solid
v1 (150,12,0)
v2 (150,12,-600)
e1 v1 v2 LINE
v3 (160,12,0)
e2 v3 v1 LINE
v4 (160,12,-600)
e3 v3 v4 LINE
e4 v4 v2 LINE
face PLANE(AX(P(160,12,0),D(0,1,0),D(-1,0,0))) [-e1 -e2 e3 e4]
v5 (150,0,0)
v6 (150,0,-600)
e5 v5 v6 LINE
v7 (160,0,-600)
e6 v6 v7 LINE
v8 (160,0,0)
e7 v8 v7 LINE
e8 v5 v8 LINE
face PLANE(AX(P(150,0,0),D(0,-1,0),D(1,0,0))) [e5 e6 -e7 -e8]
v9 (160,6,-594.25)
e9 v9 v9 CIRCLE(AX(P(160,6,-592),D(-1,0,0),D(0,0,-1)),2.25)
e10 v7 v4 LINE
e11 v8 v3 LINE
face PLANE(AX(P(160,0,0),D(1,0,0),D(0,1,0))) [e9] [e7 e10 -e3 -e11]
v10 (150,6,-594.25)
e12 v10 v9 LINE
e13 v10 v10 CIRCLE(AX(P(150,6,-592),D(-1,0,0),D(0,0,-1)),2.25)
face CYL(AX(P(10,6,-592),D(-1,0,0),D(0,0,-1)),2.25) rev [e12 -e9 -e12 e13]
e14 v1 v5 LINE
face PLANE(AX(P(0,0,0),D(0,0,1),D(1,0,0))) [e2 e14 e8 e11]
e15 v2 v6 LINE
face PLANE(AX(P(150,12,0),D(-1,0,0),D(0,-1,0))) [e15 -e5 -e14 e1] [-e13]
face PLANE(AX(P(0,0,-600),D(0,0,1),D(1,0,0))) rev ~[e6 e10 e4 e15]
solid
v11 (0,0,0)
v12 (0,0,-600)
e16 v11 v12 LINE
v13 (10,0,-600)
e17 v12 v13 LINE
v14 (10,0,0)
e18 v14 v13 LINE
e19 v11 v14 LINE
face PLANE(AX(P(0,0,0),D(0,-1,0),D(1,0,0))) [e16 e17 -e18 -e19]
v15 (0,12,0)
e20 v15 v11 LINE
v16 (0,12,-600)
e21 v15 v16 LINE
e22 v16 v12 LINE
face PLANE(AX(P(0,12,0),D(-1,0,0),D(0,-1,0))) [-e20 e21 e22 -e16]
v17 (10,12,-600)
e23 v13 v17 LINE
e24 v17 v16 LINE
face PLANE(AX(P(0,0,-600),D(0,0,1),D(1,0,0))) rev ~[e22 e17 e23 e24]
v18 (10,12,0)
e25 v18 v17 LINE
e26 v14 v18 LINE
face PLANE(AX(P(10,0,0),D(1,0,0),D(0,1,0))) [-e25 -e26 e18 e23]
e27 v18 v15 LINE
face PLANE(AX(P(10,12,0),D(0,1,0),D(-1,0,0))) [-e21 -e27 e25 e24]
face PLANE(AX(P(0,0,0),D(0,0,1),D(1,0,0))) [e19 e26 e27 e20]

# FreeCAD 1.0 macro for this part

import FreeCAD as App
import Part
import Sketcher

doc = App.newDocument("Part")
body = doc.addObject("PartDesign::Body", "Body")
body.AllowCompound = True

# Sketch on XY plane
sketch1 = body.newObject("Sketcher::SketchObject", "Sketch")
sketch1.AttachmentSupport = (doc.getObject("XY_Plane"), [""])
sketch1.MapMode = "FlatFace"
sketch1.addGeometry(Part.LineSegment(App.Vector(0, 12, 0), App.Vector(0, 0, 0)), False)
sketch1.addGeometry(Part.LineSegment(App.Vector(0, 0, 0), App.Vector(10, 0, 0)), False)
sketch1.addGeometry(Part.LineSegment(App.Vector(10, 0, 0), App.Vector(10, 12, 0)), False)
sketch1.addGeometry(Part.LineSegment(App.Vector(10, 12, 0), App.Vector(0, 12, 0)), False)
sketch1.addGeometry(Part.LineSegment(App.Vector(150, 12, 0), App.Vector(150, 0, 0)), False)
sketch1.addGeometry(Part.LineSegment(App.Vector(150, 0, 0), App.Vector(160, 0, 0)), False)
sketch1.addGeometry(Part.LineSegment(App.Vector(160, 0, 0), App.Vector(160, 12, 0)), False)
sketch1.addGeometry(Part.LineSegment(App.Vector(160, 12, 0), App.Vector(150, 12, 0)), False)
sketch1.addConstraint(Sketcher.Constraint("Coincident", 0, 2, 1, 1))
sketch1.addConstraint(Sketcher.Constraint("Coincident", 1, 2, 2, 1))
sketch1.addConstraint(Sketcher.Constraint("Coincident", 2, 2, 3, 1))
sketch1.addConstraint(Sketcher.Constraint("Coincident", 3, 2, 0, 1))
sketch1.addConstraint(Sketcher.Constraint("Coincident", 4, 2, 5, 1))
sketch1.addConstraint(Sketcher.Constraint("Coincident", 5, 2, 6, 1))
sketch1.addConstraint(Sketcher.Constraint("Coincident", 6, 2, 7, 1))
sketch1.addConstraint(Sketcher.Constraint("Coincident", 7, 2, 4, 1))
sketch1.addConstraint(Sketcher.Constraint("Vertical", 0))
sketch1.addConstraint(Sketcher.Constraint("Horizontal", 1))
sketch1.addConstraint(Sketcher.Constraint("Vertical", 2))
sketch1.addConstraint(Sketcher.Constraint("Horizontal", 3))
sketch1.addConstraint(Sketcher.Constraint("Vertical", 4))
sketch1.addConstraint(Sketcher.Constraint("Horizontal", 5))
sketch1.addConstraint(Sketcher.Constraint("Vertical", 6))
sketch1.addConstraint(Sketcher.Constraint("Horizontal", 7))
sketch1.addConstraint(Sketcher.Constraint("Coincident", 0, 2, -1, 1))
sketch1.addConstraint(Sketcher.Constraint("PointOnObject", 4, 2, -1))
sketch1.addConstraint(Sketcher.Constraint("Horizontal", 3, 2, 6, 2))
sketch1.addConstraint(Sketcher.Constraint("Equal", 3, 5))
sketch1.addConstraint(Sketcher.Constraint("DistanceX", 1, 1, 1, 2, 10.0))
sketch1.addConstraint(Sketcher.Constraint("DistanceY", 0, 2, 0, 1, 12.0))
sketch1.addConstraint(Sketcher.Constraint("DistanceX", -1, 1, 4, 2, 150.0))
pad1 = body.newObject("PartDesign::Pad", "Pad")
pad1.Profile = sketch1
pad1.Length = 600
pad1.Reversed = True

# Sketch on YZ plane
sketch2 = body.newObject("Sketcher::SketchObject", "Sketch001")
sketch2.AttachmentSupport = (doc.getObject("YZ_Plane"), [""])
sketch2.MapMode = "FlatFace"
sketch2.AttachmentOffset = App.Placement(App.Vector(0, 0, 10), App.Rotation())
sketch2.addGeometry(Part.Circle(App.Vector(6, -592, 0), App.Vector(0, 0, 1), 2.2), False)
sketch2.addConstraint(Sketcher.Constraint("Diameter", 0, 4.5))
sketch2.addConstraint(Sketcher.Constraint("DistanceX", -1, 1, 0, 3, 6.0))
sketch2.addConstraint(Sketcher.Constraint("DistanceY", 0, 3, -1, 1, 592.0))
pocket1 = body.newObject("PartDesign::Pocket", "Pocket")
pocket1.Profile = sketch2
pocket1.Length = 600
pocket1.Reversed = True

doc.recompute()
